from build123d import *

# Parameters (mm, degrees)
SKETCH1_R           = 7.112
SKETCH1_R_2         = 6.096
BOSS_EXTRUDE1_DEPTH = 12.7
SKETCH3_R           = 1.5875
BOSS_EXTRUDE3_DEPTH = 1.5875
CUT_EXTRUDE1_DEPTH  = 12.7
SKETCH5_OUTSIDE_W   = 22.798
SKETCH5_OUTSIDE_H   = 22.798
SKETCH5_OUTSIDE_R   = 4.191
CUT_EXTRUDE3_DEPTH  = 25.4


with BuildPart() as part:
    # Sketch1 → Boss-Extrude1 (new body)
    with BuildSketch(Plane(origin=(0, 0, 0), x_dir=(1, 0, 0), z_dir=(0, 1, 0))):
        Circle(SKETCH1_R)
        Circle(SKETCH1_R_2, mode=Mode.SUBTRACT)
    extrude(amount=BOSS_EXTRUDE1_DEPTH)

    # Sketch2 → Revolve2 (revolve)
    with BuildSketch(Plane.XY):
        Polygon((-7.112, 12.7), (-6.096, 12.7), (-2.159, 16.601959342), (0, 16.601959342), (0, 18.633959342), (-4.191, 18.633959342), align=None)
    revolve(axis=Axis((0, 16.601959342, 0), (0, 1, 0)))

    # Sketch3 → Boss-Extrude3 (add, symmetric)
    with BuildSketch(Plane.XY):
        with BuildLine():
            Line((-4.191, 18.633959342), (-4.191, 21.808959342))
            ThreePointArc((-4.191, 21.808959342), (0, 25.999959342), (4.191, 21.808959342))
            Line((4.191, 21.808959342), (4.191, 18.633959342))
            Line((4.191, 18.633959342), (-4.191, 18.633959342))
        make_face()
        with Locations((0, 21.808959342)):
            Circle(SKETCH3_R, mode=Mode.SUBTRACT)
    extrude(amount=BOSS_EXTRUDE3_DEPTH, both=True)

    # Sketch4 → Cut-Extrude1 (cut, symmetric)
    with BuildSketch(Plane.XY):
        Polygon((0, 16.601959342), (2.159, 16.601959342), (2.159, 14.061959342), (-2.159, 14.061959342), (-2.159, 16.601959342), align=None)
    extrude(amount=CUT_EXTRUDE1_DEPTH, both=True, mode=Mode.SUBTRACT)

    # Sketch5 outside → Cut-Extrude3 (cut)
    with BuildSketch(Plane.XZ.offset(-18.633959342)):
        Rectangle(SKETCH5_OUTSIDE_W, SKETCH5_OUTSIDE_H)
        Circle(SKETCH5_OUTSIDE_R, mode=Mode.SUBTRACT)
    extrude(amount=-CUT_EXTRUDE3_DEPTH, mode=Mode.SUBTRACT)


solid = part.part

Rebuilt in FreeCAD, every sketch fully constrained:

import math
import FreeCAD as App
import Part
import Sketcher
Q = App.Units.Quantity


def add_polygon(sketch, points):
    """Adds a closed chain of lines whose ends are joined by coincident constraints."""
    first, n = sketch.GeometryCount, len(points)
    for a, b in zip(points, points[1:] + points[:1]):
        sketch.addGeometry(Part.LineSegment(App.Vector(*a, 0), App.Vector(*b, 0)), False)
    for i in range(n):
        sketch.addConstraint(Sketcher.Constraint("Coincident", first + i, 2, first + (i + 1) % n, 1))

doc = App.newDocument("Part")
body = doc.addObject("PartDesign::Body", "Body")

# Sketch on XZ plane
sketch1 = doc.addObject("Sketcher::SketchObject", "Sketch")
body.addObject(sketch1)
sketch1.AttachmentSupport = (doc.XZ_Plane, [""])
sketch1.MapMode = "FlatFace"
sketch1.addGeometry([
    Part.Circle(App.Vector(0, 0, 0), App.Vector(0, 0, 1), 7.112),
    Part.Circle(App.Vector(0, 0, 0), App.Vector(0, 0, 1), 6.096),
], False)
sketch1.addConstraint([
    Sketcher.Constraint("Coincident", 0, 3, -1, 1),
    Sketcher.Constraint("Coincident", 1, 3, -1, 1),
    Sketcher.Constraint("Diameter", 0, Q("0.56 in")),
    Sketcher.Constraint("Diameter", 1, Q("0.48 in")),
])
pad1 = doc.addObject("PartDesign::Pad", "Pad")
body.addObject(pad1)
pad1.Profile = sketch1
pad1.Length = Q("0.5 in")
pad1.Reversed = True

# Sketch on XY plane
sketch2 = doc.addObject("Sketcher::SketchObject", "Sketch001")
body.addObject(sketch2)
sketch2.AttachmentSupport = (doc.XY_Plane, [""])
sketch2.MapMode = "FlatFace"
add_polygon(sketch2, [(-7.112, 12.7), (-6.096, 12.7), (-2.159, 16.601959), (0, 16.601959), (0, 18.633959), (-4.191, 18.633959)])  # lines 0-5
sketch2.addConstraint([
    Sketcher.Constraint("Horizontal", 0),
    Sketcher.Constraint("Horizontal", 2),
    Sketcher.Constraint("Vertical", 3),
    Sketcher.Constraint("Horizontal", 4),
    Sketcher.Constraint("PointOnObject", 2, 2, -2),
    Sketcher.Constraint("DistanceX", 0, 1, 0, 2, Q("0.04 in")),
    Sketcher.Constraint("DistanceY", 3, 1, 3, 2, Q("0.08 in")),
    Sketcher.Constraint("DistanceY", -1, 1, 0, 2, Q("0.5 in")),
    Sketcher.Constraint("DistanceX", 2, 1, 2, 2, Q("0.085 in")),
    Sketcher.Constraint("DistanceX", 4, 2, 4, 1, Q("0.165 in")),
    Sketcher.Constraint("DistanceX", 0, 2, -1, 1, Q("0.24 in")),
    Sketcher.Constraint("DistanceY", -1, 1, 1, 2, Q("16.601959 mm")),
])
revolution = doc.addObject("PartDesign::Revolution", "Revolution")
body.addObject(revolution)
revolution.Profile = sketch2
revolution.ReferenceAxis = (sketch2, ["V_Axis"])
revolution.Angle = 360

# Sketch on XY plane
sketch3 = doc.addObject("Sketcher::SketchObject", "Sketch002")
body.addObject(sketch3)
sketch3.AttachmentSupport = (doc.XY_Plane, [""])
sketch3.MapMode = "FlatFace"
sketch3.addGeometry([
    Part.LineSegment(App.Vector(-4.191, 21.808959, 0), App.Vector(-4.191, 18.633959, 0)),  # 0
    Part.LineSegment(App.Vector(-4.191, 18.633959, 0), App.Vector(4.191, 18.633959, 0)),  # 1
    Part.LineSegment(App.Vector(4.191, 18.633959, 0), App.Vector(4.191, 21.808959, 0)),  # 2
    Part.ArcOfCircle(Part.Circle(App.Vector(0, 21.808959, 0), App.Vector(0, 0, 1), 4.191), math.radians(0), math.radians(180)),  # 3
    Part.Circle(App.Vector(0, 21.808959, 0), App.Vector(0, 0, 1), 1.5875),  # 4
], False)
sketch3.addConstraint([
    Sketcher.Constraint("Coincident", 0, 2, 1, 1),
    Sketcher.Constraint("Coincident", 1, 2, 2, 1),
    Sketcher.Constraint("Tangent", 2, 2, 3, 1),
    Sketcher.Constraint("Tangent", 3, 2, 0, 1),
    Sketcher.Constraint("Vertical", 0),
    Sketcher.Constraint("Horizontal", 1),
    Sketcher.Constraint("Vertical", 2),
    Sketcher.Constraint("Coincident", 4, 3, 3, 3),
    Sketcher.Constraint("PointOnObject", 3, 3, -2),
    Sketcher.Constraint("Diameter", 4, Q("0.125 in")),
    Sketcher.Constraint("Radius", 3, Q("0.165 in")),
    Sketcher.Constraint("DistanceY", 0, 2, 0, 1, Q("0.125 in")),
    Sketcher.Constraint("DistanceY", -1, 1, 3, 3, Q("21.808959 mm")),
])
pad2 = doc.addObject("PartDesign::Pad", "Pad001")
body.addObject(pad2)
pad2.Profile = sketch3
pad2.Length = Q("0.125 in")
pad2.Midplane = True

# Sketch on XY plane
sketch4 = doc.addObject("Sketcher::SketchObject", "Sketch003")
body.addObject(sketch4)
sketch4.AttachmentSupport = (doc.XY_Plane, [""])
sketch4.MapMode = "FlatFace"
add_polygon(sketch4, [(2.159, 16.601959), (-2.159, 16.601959), (-2.159, 14.061959), (2.159, 14.061959)])  # lines 0-3
sketch4.addConstraint([
    Sketcher.Constraint("Horizontal", 0),
    Sketcher.Constraint("Vertical", 1),
    Sketcher.Constraint("Horizontal", 2),
    Sketcher.Constraint("Vertical", 3),
    Sketcher.Constraint("DistanceY", 1, 2, 1, 1, Q("0.1 in")),
    Sketcher.Constraint("DistanceX", 0, 2, 0, 1, Q("0.17 in")),
    Sketcher.Constraint("DistanceX", 0, 2, -1, 1, Q("0.085 in")),
    Sketcher.Constraint("DistanceY", -1, 1, 0, 2, Q("16.601959 mm")),
])
pocket1 = doc.addObject("PartDesign::Pocket", "Pocket")
body.addObject(pocket1)
pocket1.Profile = sketch4
pocket1.Length = Q("1 in")
pocket1.Midplane = True

# Sketch on XZ plane
sketch5 = doc.addObject("Sketcher::SketchObject", "Sketch004")
body.addObject(sketch5)
sketch5.AttachmentSupport = (doc.XZ_Plane, [""])
sketch5.MapMode = "FlatFace"
sketch5.AttachmentOffset = App.Placement(App.Vector(0, 0, -18.633959), App.Rotation())
add_polygon(sketch5, [(-11.399, 11.399), (-11.399, -11.399), (11.399, -11.399), (11.399, 11.399)])  # lines 0-3
sketch5.addGeometry(Part.Circle(App.Vector(0, 0, 0), App.Vector(0, 0, 1), 4.191), False)  # 4
sketch5.addConstraint([
    Sketcher.Constraint("Vertical", 0),
    Sketcher.Constraint("Horizontal", 1),
    Sketcher.Constraint("Vertical", 2),
    Sketcher.Constraint("Horizontal", 3),
    Sketcher.Constraint("Coincident", 4, 3, -1, 1),
    Sketcher.Constraint("Symmetric", 0, 2, 2, 2, -1, 1),
    Sketcher.Constraint("Equal", 3, 0),
    Sketcher.Constraint("Diameter", 4, Q("0.33 in")),
    Sketcher.Constraint("DistanceX", 1, 1, 1, 2, Q("22.798 mm")),
])
pocket2 = doc.addObject("PartDesign::Pocket", "Pocket001")
body.addObject(pocket2)
pocket2.Profile = sketch5
pocket2.Length = Q("1 in")

doc.recompute()
